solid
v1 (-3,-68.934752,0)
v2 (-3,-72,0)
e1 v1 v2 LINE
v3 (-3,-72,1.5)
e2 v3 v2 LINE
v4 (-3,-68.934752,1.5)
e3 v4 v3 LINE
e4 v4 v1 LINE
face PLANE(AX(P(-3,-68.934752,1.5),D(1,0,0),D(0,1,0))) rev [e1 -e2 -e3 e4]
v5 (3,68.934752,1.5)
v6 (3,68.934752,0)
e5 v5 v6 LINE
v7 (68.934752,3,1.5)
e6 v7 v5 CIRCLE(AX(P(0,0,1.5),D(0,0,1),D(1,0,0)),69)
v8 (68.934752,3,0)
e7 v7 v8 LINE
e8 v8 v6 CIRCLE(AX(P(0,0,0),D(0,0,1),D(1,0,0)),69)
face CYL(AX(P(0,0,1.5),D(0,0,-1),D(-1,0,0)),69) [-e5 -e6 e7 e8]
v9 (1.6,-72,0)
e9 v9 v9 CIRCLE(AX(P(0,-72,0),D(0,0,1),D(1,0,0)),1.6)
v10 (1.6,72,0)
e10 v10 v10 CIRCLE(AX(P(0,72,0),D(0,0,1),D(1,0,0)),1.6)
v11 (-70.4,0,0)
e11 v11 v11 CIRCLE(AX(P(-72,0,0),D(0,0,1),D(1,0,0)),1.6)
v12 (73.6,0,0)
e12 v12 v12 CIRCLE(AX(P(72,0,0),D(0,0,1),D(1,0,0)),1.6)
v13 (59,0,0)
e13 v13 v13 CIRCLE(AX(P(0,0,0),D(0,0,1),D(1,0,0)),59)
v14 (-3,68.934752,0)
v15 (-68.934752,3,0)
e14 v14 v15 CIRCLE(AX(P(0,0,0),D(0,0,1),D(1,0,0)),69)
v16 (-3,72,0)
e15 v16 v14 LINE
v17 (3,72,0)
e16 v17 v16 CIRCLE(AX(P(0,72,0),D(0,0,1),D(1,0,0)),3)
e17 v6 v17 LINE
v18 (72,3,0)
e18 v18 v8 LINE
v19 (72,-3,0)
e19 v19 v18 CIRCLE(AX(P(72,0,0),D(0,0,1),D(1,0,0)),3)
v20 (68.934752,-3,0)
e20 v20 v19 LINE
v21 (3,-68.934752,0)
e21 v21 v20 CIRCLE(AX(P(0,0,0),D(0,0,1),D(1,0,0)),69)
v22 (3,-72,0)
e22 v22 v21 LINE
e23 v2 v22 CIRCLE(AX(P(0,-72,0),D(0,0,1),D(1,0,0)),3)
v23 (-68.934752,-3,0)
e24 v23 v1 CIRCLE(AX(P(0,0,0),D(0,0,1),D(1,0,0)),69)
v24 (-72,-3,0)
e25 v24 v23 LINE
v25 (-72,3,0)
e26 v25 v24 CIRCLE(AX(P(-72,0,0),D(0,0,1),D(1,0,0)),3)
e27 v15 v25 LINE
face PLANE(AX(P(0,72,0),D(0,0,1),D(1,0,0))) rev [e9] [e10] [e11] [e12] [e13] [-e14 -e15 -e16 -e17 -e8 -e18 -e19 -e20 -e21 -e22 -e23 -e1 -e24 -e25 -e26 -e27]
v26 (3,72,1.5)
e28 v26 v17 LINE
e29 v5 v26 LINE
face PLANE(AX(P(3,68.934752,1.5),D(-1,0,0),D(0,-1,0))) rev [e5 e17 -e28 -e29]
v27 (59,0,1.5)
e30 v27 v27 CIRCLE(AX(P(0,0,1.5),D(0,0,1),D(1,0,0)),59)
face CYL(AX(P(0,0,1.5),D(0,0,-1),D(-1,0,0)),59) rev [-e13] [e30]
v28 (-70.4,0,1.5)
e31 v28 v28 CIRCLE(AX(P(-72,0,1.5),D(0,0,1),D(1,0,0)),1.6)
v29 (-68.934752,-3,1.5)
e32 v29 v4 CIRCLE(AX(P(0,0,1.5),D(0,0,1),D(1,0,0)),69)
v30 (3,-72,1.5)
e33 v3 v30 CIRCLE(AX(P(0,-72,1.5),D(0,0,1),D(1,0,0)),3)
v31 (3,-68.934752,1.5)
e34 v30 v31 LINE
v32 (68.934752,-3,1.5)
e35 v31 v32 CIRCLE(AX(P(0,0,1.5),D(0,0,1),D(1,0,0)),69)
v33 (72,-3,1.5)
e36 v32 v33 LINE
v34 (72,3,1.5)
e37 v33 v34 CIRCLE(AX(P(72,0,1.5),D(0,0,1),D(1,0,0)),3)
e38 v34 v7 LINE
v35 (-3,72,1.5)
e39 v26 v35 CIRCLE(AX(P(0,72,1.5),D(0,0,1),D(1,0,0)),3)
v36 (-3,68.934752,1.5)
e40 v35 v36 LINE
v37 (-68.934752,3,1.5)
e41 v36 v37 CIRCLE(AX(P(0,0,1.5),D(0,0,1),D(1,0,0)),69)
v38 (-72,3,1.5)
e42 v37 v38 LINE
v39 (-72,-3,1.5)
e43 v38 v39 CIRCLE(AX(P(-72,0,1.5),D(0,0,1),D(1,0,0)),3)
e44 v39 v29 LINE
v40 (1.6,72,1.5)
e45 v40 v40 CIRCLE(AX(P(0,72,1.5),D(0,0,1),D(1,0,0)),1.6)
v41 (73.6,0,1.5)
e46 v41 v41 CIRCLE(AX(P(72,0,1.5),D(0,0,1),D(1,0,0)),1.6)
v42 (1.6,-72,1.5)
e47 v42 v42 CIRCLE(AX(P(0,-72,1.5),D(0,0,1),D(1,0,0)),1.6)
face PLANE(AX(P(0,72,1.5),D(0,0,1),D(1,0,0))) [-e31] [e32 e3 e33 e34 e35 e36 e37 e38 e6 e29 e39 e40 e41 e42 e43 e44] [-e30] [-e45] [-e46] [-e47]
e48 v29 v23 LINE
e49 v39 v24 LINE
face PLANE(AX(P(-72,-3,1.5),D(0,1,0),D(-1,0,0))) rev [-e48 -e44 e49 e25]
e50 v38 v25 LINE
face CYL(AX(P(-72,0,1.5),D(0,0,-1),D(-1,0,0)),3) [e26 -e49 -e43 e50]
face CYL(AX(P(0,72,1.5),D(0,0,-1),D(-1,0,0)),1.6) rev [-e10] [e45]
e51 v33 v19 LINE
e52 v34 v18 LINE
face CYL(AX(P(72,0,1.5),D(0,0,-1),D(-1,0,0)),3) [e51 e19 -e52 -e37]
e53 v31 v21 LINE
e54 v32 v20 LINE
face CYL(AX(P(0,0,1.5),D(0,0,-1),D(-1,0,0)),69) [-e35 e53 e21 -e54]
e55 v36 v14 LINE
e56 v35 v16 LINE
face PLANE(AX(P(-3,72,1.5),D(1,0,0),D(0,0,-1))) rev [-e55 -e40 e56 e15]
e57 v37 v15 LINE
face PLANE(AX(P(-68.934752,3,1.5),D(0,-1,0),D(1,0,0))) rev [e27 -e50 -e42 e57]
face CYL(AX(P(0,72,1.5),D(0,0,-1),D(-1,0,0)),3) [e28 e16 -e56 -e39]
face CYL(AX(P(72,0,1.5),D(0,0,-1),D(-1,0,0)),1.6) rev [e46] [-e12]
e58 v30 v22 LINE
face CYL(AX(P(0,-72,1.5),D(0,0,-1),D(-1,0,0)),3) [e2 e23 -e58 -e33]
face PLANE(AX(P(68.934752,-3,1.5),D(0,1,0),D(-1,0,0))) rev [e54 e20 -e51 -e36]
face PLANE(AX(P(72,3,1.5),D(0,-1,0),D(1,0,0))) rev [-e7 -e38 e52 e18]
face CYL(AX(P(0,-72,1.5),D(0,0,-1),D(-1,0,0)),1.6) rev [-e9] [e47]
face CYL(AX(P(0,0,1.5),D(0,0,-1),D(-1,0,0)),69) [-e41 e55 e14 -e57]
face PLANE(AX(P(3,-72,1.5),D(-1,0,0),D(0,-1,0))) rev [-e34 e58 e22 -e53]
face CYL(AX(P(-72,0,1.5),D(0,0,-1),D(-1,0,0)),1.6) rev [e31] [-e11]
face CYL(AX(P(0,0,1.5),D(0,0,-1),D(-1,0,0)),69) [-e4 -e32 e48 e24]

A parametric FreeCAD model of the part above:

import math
import FreeCAD as App
import Part
import Sketcher
from FreeCAD import Vector
Q = App.Units.Quantity

doc = App.newDocument("Part")
params = doc.addObject("Spreadsheet::Sheet", "Params")
for row, (alias, value) in enumerate([
    ("sketch1_diameter", "118 mm"),
    ("sketch1_radius", "3 mm"),
    ("sketch1_radius2", "69 mm"),
    ("sketch1_diameter2", "3.2 mm"),
    ("pad1_length", "1.5 mm"),
], start=1):
    params.set(f"A{row}", alias)
    params.set(f"B{row}", "=" + value)
    params.setAlias(f"B{row}", alias)

body = doc.addObject("PartDesign::Body", "Body")

sketch1 = body.newObject("Sketcher::SketchObject", "Sketch")
sketch1.AttachmentSupport = (doc.getObject("XY_Plane"), [""])
sketch1.MapMode = "FlatFace"
sketch1.addGeometry([
    Part.LineSegment(Vector(68.9, -3, 0), Vector(72, -3, 0)),
    Part.ArcOfCircle(Part.Circle(Vector(72, 0, 0), Vector(0, 0, 1), 3), math.radians(-90), math.radians(90)),
    Part.LineSegment(Vector(72, 3, 0), Vector(68.9, 3, 0)),
    Part.ArcOfCircle(Part.Circle(Vector(0, 0, 0), Vector(0, 0, 1), 69), math.radians(2), math.radians(88)),
    Part.LineSegment(Vector(3, 68.9, 0), Vector(3, 72, 0)),
    Part.ArcOfCircle(Part.Circle(Vector(0, 72, 0), Vector(0, 0, 1), 3), math.radians(0), math.radians(180)),
    Part.LineSegment(Vector(-3, 72, 0), Vector(-3, 68.9, 0)),
    Part.ArcOfCircle(Part.Circle(Vector(0, 0, 0), Vector(0, 0, 1), 69), math.radians(92), math.radians(178)),
    Part.LineSegment(Vector(-68.9, 3, 0), Vector(-72, 3, 0)),
    Part.ArcOfCircle(Part.Circle(Vector(-72, 0, 0), Vector(0, 0, 1), 3), math.radians(90), math.radians(270)),
    Part.LineSegment(Vector(-72, -3, 0), Vector(-68.9, -3, 0)),
    Part.ArcOfCircle(Part.Circle(Vector(0, 0, 0), Vector(0, 0, 1), 69), math.radians(-178), math.radians(-92)),
    Part.LineSegment(Vector(-3, -68.9, 0), Vector(-3, -72, 0)),
    Part.ArcOfCircle(Part.Circle(Vector(0, -72, 0), Vector(0, 0, 1), 3), math.radians(180), math.radians(360)),
    Part.LineSegment(Vector(3, -72, 0), Vector(3, -68.9, 0)),
    Part.ArcOfCircle(Part.Circle(Vector(0, 0, 0), Vector(0, 0, 1), 69), math.radians(-88), math.radians(-2)),
    Part.Circle(Vector(0, -72, 0), Vector(0, 0, 1), 1.6),
    Part.Circle(Vector(-72, 0, 0), Vector(0, 0, 1), 1.6),
    Part.Circle(Vector(0, 0, 0), Vector(0, 0, 1), 59),
    Part.Circle(Vector(72, 0, 0), Vector(0, 0, 1), 1.6),
    Part.Circle(Vector(0, 72, 0), Vector(0, 0, 1), 1.6),
], False)
sketch1.addConstraint([
    Sketcher.Constraint("Tangent", 0, 2, 1, 1),
    Sketcher.Constraint("Tangent", 1, 2, 2, 1),
    Sketcher.Constraint("Coincident", 2, 2, 3, 1),
    Sketcher.Constraint("Coincident", 3, 2, 4, 1),
    Sketcher.Constraint("Tangent", 4, 2, 5, 1),
    Sketcher.Constraint("Tangent", 5, 2, 6, 1),
    Sketcher.Constraint("Coincident", 6, 2, 7, 1),
    Sketcher.Constraint("Coincident", 7, 2, 8, 1),
    Sketcher.Constraint("Tangent", 8, 2, 9, 1),
    Sketcher.Constraint("Tangent", 9, 2, 10, 1),
    Sketcher.Constraint("Coincident", 10, 2, 11, 1),
    Sketcher.Constraint("Coincident", 11, 2, 12, 1),
    Sketcher.Constraint("Tangent", 12, 2, 13, 1),
    Sketcher.Constraint("Tangent", 13, 2, 14, 1),
    Sketcher.Constraint("Coincident", 14, 2, 15, 1),
    Sketcher.Constraint("Coincident", 15, 2, 0, 1),
    Sketcher.Constraint("Horizontal", 0),
    Sketcher.Constraint("Horizontal", 2),
    Sketcher.Constraint("Vertical", 4),
    Sketcher.Constraint("Vertical", 6),
    Sketcher.Constraint("Horizontal", 8),
    Sketcher.Constraint("Horizontal", 10),
    Sketcher.Constraint("Vertical", 12),
    Sketcher.Constraint("Vertical", 14),
    Sketcher.Constraint("Coincident", 3, 3, -1, 1),
    Sketcher.Constraint("Coincident", 7, 3, -1, 1),
    Sketcher.Constraint("Coincident", 11, 3, -1, 1),
    Sketcher.Constraint("Coincident", 15, 3, -1, 1),
    Sketcher.Constraint("Coincident", 18, 3, -1, 1),
    Sketcher.Constraint("Coincident", 16, 3, 13, 3),
    Sketcher.Constraint("Coincident", 17, 3, 9, 3),
    Sketcher.Constraint("Coincident", 19, 3, 1, 3),
    Sketcher.Constraint("Coincident", 20, 3, 5, 3),
    Sketcher.Constraint("Equal", 1, 5),
    Sketcher.Constraint("Equal", 3, 7),
    Sketcher.Constraint("Equal", 5, 9),
    Sketcher.Constraint("Equal", 7, 11),
    Sketcher.Constraint("Equal", 9, 13),
    Sketcher.Constraint("Equal", 11, 15),
    Sketcher.Constraint("Equal", 16, 17),
    Sketcher.Constraint("Equal", 17, 19),
    Sketcher.Constraint("Equal", 19, 20),
    Sketcher.Constraint("Symmetric", 1, 3, 9, 3, -1, 1),
    Sketcher.Constraint("Symmetric", 5, 3, 13, 3, -1, 1),
    Sketcher.Constraint("PointOnObject", 1, 3, -1),
    Sketcher.Constraint("PointOnObject", 5, 3, -2),
    Sketcher.Constraint("Equal", 10, 4),
    Sketcher.Constraint("Diameter", 18, Q("118 mm")),
    Sketcher.Constraint("Radius", 1, Q("3 mm")),
    Sketcher.Constraint("Radius", 3, Q("69 mm")),
    Sketcher.Constraint("Diameter", 16, Q("3.2 mm")),
    Sketcher.Constraint("DistanceX", -1, 1, 1, 3, Q("72 mm")),
])
sketch1.setExpression("Constraints[47]", "Params.sketch1_diameter")
sketch1.setExpression("Constraints[48]", "Params.sketch1_radius")
sketch1.setExpression("Constraints[49]", "Params.sketch1_radius2")
sketch1.setExpression("Constraints[50]", "Params.sketch1_diameter2")
pad1 = body.newObject("PartDesign::Pad", "Pad")
pad1.Profile = sketch1
pad1.setExpression("Length", "Params.pad1_length")

doc.recompute()
